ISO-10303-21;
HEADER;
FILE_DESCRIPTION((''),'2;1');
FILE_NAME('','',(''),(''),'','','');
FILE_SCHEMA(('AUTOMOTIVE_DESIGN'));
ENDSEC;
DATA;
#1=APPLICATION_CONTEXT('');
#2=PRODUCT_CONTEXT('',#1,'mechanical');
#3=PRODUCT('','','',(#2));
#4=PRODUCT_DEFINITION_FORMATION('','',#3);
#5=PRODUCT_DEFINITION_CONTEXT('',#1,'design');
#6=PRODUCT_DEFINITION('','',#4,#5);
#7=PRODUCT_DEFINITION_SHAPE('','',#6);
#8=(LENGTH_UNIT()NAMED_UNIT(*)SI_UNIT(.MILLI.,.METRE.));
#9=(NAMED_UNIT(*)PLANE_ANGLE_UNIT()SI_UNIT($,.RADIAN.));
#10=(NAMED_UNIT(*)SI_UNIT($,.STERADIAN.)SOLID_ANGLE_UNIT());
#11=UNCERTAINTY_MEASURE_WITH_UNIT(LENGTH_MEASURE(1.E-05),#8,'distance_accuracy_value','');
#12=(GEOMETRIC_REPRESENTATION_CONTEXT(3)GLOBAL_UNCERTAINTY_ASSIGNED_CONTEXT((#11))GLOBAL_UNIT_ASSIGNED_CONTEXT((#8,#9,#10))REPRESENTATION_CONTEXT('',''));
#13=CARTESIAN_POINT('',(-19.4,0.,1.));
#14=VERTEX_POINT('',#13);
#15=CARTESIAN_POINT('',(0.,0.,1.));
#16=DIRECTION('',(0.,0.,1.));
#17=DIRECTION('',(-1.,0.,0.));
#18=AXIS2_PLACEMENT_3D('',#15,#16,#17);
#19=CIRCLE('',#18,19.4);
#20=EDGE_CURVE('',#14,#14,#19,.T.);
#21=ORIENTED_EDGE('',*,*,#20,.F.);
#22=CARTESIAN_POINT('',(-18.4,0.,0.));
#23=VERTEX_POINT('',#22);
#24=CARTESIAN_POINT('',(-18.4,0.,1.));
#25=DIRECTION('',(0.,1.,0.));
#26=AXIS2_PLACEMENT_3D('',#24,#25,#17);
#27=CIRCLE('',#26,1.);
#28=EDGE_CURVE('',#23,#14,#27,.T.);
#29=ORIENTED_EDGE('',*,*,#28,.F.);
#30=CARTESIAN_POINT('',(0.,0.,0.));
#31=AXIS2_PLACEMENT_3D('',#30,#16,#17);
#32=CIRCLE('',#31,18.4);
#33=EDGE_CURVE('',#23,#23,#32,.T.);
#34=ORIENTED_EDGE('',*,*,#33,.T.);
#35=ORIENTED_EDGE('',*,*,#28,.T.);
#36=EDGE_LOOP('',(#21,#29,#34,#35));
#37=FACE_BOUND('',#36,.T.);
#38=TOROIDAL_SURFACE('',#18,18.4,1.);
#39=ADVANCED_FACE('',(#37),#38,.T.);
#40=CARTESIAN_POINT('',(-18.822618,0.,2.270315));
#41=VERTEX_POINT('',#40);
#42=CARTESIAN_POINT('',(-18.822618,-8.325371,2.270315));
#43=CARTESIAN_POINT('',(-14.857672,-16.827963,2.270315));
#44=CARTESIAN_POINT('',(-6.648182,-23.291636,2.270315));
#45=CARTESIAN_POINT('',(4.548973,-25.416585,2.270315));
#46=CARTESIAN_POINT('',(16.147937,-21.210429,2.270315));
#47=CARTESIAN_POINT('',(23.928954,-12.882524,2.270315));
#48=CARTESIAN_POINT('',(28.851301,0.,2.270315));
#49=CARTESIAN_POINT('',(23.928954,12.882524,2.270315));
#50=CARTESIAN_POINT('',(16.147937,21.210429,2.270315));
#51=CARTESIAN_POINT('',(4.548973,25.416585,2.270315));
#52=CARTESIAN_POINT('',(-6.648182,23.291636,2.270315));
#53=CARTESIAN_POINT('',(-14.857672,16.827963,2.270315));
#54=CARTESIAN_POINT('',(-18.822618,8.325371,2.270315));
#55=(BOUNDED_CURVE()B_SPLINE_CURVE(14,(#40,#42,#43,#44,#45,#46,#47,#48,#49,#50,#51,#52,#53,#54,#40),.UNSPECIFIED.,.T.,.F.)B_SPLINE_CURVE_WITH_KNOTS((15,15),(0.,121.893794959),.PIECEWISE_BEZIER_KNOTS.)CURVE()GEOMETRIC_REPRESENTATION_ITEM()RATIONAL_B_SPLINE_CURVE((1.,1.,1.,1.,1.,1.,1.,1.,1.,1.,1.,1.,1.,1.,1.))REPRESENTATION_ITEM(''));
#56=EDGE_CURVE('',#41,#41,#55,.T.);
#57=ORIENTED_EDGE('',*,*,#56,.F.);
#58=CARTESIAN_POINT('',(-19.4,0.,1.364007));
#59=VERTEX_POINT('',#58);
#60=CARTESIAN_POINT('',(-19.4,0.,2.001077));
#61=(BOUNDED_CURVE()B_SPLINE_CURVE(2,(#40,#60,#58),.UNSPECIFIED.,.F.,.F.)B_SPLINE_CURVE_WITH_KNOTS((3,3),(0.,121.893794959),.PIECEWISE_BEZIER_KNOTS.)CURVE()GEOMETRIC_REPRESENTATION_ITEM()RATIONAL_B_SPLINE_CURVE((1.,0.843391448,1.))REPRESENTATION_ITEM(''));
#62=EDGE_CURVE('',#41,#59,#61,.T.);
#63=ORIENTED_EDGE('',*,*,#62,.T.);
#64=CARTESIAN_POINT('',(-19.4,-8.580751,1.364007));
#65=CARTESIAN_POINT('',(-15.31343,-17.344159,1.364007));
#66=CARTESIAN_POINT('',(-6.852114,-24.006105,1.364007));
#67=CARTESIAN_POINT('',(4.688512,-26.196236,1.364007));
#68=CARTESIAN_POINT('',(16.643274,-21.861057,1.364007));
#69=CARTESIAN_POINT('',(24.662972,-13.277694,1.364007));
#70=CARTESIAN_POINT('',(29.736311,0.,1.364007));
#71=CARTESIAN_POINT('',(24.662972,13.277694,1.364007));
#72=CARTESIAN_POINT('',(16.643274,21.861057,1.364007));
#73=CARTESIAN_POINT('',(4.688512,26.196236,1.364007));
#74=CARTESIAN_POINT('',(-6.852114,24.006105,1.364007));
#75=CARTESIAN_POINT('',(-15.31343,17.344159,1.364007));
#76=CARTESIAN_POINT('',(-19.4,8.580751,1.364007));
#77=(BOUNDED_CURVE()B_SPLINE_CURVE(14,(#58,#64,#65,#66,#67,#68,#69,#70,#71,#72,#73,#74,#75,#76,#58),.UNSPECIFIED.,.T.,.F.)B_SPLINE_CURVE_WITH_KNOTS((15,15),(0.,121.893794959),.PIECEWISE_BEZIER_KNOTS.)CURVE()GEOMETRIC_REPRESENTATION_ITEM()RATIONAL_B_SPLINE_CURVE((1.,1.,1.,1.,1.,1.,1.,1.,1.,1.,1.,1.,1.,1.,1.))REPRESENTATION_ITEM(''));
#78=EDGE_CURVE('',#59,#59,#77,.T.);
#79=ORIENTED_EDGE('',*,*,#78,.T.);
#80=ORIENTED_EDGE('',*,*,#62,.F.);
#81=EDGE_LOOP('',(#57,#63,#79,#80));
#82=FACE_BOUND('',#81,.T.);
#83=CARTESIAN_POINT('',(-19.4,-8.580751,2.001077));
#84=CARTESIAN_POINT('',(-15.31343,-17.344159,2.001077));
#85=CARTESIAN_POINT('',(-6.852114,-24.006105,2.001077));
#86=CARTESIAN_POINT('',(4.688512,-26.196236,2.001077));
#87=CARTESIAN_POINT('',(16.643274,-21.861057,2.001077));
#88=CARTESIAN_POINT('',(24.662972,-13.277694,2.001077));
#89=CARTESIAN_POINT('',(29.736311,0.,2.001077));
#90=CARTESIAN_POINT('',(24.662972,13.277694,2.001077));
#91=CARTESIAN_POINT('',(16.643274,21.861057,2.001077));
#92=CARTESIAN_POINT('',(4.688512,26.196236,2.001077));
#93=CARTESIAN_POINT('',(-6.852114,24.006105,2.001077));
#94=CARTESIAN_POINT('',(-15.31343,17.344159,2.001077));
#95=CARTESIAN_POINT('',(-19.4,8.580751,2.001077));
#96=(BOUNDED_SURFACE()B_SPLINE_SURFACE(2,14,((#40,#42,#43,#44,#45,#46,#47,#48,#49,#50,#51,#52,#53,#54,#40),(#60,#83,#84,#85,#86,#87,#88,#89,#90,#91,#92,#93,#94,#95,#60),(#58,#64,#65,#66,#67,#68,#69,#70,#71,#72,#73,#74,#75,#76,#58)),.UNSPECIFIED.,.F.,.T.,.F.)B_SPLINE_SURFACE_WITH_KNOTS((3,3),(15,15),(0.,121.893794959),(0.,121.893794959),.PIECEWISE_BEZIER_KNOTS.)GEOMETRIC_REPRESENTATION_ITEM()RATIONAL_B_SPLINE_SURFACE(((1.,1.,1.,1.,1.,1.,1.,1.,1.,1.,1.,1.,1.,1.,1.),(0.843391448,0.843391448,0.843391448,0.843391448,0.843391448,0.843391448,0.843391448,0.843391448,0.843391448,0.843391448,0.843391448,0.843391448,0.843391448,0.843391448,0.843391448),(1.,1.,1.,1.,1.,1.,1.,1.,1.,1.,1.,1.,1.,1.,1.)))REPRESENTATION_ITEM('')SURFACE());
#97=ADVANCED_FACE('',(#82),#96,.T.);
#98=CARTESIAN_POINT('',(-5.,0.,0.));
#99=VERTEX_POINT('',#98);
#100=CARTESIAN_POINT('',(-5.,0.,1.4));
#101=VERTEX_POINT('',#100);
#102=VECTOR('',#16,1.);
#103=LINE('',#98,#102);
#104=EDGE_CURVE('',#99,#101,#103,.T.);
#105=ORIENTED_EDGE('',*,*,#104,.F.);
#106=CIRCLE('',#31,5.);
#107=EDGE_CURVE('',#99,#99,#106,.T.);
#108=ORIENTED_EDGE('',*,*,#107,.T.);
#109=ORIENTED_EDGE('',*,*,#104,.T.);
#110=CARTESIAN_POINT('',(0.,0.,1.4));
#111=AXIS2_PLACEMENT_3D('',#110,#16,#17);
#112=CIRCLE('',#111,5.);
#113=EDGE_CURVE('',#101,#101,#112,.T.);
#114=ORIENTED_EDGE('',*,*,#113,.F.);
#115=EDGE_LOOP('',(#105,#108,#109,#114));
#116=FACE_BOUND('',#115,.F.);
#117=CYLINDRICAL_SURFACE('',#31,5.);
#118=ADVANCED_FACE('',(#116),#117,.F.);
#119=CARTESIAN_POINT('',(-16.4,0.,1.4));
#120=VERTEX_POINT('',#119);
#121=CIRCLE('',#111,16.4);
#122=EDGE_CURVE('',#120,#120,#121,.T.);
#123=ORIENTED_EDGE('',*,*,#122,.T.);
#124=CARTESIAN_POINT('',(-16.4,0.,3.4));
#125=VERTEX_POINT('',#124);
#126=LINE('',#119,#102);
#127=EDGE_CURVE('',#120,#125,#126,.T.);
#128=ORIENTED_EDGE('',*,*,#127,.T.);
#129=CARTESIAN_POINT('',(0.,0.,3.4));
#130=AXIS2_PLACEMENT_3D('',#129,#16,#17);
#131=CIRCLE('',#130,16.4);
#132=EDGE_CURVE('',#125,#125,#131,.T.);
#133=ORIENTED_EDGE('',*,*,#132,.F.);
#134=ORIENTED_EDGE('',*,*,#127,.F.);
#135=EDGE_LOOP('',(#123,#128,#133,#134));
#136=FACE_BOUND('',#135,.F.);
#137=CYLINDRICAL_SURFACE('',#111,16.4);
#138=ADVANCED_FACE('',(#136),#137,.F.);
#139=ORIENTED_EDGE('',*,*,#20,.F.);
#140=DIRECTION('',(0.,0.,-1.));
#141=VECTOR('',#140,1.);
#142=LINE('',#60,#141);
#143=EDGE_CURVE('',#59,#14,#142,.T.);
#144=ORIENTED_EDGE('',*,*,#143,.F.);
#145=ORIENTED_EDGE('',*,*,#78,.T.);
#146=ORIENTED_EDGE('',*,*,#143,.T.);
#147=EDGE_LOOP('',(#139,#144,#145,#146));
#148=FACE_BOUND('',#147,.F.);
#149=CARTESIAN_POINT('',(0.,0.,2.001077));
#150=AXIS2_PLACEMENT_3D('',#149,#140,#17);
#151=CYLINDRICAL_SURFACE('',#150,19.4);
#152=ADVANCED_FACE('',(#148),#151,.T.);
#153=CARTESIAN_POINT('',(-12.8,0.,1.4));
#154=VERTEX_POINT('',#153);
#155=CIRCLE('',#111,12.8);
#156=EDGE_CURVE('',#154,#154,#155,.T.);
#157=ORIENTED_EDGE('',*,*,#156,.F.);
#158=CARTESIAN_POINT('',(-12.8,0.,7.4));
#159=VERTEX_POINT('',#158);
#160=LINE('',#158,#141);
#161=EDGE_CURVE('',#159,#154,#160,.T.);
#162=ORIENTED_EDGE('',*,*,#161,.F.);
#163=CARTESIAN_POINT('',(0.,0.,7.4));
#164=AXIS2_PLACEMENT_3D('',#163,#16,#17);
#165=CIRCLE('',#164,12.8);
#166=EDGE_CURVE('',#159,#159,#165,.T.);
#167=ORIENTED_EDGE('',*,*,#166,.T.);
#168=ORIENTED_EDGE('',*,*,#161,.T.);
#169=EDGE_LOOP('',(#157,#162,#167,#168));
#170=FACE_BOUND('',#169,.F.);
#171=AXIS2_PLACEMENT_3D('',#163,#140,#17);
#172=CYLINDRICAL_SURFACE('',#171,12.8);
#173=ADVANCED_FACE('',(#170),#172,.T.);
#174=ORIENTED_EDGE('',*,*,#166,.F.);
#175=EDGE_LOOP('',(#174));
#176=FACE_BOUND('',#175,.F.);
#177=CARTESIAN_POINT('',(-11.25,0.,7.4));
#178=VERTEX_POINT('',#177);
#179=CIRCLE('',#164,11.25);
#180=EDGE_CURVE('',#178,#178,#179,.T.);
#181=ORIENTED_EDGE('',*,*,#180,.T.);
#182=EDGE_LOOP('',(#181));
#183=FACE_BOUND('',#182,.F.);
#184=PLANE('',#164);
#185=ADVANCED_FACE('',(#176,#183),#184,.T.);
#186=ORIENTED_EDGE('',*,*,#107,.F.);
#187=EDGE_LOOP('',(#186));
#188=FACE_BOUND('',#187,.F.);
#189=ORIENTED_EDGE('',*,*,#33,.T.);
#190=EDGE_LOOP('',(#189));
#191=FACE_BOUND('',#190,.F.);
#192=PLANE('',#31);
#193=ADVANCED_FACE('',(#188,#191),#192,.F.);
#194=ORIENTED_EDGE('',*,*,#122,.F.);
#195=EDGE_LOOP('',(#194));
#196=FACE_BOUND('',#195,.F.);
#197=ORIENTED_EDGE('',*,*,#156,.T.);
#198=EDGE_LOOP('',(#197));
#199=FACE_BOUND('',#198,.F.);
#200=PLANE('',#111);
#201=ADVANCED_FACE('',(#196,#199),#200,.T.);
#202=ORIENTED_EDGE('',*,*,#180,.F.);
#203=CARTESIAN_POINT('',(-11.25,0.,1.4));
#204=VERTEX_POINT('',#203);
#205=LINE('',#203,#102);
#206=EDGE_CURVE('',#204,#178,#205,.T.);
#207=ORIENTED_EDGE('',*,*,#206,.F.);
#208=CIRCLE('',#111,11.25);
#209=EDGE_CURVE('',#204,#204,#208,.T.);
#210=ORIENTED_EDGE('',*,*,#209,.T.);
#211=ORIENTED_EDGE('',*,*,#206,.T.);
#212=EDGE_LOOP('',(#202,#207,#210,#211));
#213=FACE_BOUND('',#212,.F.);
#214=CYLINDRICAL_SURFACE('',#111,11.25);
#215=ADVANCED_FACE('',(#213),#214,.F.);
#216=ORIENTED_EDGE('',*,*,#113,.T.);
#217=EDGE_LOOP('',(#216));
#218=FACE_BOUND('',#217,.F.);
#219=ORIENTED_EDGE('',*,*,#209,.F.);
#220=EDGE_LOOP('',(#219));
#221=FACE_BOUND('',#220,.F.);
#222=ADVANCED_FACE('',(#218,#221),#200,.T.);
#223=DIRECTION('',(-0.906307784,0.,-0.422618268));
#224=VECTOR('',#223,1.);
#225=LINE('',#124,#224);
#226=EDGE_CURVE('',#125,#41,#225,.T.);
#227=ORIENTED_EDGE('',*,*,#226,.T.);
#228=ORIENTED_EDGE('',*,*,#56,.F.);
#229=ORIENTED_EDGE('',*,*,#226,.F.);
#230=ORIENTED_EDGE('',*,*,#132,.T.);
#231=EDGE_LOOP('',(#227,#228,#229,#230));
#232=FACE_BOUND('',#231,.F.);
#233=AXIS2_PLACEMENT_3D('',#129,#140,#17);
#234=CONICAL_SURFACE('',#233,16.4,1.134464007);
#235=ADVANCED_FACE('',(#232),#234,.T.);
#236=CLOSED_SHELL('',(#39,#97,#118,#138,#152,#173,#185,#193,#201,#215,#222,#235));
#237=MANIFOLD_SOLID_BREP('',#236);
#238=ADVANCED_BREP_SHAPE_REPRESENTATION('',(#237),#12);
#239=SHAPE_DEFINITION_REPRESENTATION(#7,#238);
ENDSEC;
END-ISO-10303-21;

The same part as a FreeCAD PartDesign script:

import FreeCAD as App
import Part
import Sketcher
from FreeCAD import Vector
Q = App.Units.Quantity


def edges_at(feature, points):
    """Names of the edges that pass closest to the given points."""
    edges = feature.Shape.Edges
    near = lambda p: min(range(len(edges)), key=lambda i: edges[i].distToShape(Part.Vertex(*p))[0])
    return sorted({f"Edge{near(p) + 1}" for p in points})


def add_polygon(sketch, points):
    """Adds a closed chain of lines whose ends are joined by coincident constraints."""
    first, n = sketch.GeometryCount, len(points)
    for a, b in zip(points, points[1:] + points[:1]):
        sketch.addGeometry(Part.LineSegment(App.Vector(*a, 0), App.Vector(*b, 0)), False)
    for i in range(n):
        sketch.addConstraint(Sketcher.Constraint("Coincident", first + i, 2, first + (i + 1) % n, 1))

doc = App.newDocument("Part")
params = doc.addObject("Spreadsheet::Sheet", "Params")
for row, (alias, value) in enumerate([
    ("sketch1_height", "6 mm"),
    ("sketch1_height2", "2 mm"),
    ("sketch1_width", "14.4 mm"),
    ("sketch1_width2", "3.6 mm"),
    ("sketch1_height3", "1.4 mm"),
    ("revolution_angle", "360 deg"),
    ("fillet_radius", "1 mm"),
], start=1):
    params.set(f"A{row}", alias)
    params.set(f"B{row}", "=" + value)
    params.setAlias(f"B{row}", alias)

body = doc.addObject("PartDesign::Body", "Body")

# Sketch on XZ plane
sketch1 = body.newObject("Sketcher::SketchObject", "Sketch")
sketch1.AttachmentSupport = (doc.getObject("XZ_Plane"), [""])
sketch1.MapMode = "FlatFace"
add_polygon(sketch1, [(-19.4, 0), (-5, 0), (-5, 1.4), (-11.25, 1.4), (-11.25, 7.4), (-12.8, 7.4), (-12.8, 1.4), (-16.4, 1.4), (-16.4, 3.4), (-19.4, 2.001077)])  # lines 0-9
sketch1.addConstraint([
    Sketcher.Constraint("Horizontal", 0),
    Sketcher.Constraint("Vertical", 1),
    Sketcher.Constraint("Horizontal", 2),
    Sketcher.Constraint("Vertical", 3),
    Sketcher.Constraint("Horizontal", 4),
    Sketcher.Constraint("Vertical", 5),
    Sketcher.Constraint("Horizontal", 6),
    Sketcher.Constraint("Vertical", 7),
    Sketcher.Constraint("Vertical", 9),
    Sketcher.Constraint("PointOnObject", 0, 2, -1),
    Sketcher.Constraint("Horizontal", 2, 2, 5, 2),
    Sketcher.Constraint("DistanceY", 3, 1, 3, 2, 6.0),
    Sketcher.Constraint("DistanceY", 7, 1, 7, 2, 2.0),
    Sketcher.Constraint("Angle", 8, Q("-155 deg")),
    Sketcher.Constraint("DistanceX", 0, 1, 0, 2, 14.4),
    Sketcher.Constraint("DistanceX", 6, 2, 6, 1, 3.6),
    Sketcher.Constraint("DistanceY", 1, 1, 1, 2, 1.4),
    Sketcher.Constraint("DistanceX", 0, 2, -1, 1, 5.0),
    Sketcher.Constraint("DistanceX", 8, 2, 6, 2, 3.0),
    Sketcher.Constraint("DistanceX", 2, 2, 2, 1, 6.25),
])
sketch1.setExpression("Constraints[21]", "Params.sketch1_height")
sketch1.setExpression("Constraints[22]", "Params.sketch1_height2")
sketch1.setExpression("Constraints[24]", "Params.sketch1_width")
sketch1.setExpression("Constraints[25]", "Params.sketch1_width2")
sketch1.setExpression("Constraints[26]", "Params.sketch1_height3")
revolution = body.newObject("PartDesign::Revolution", "Revolution")
revolution.Profile = sketch1
revolution.ReferenceAxis = (sketch1, ["V_Axis"])
revolution.setExpression("Angle", "Params.revolution_angle")
doc.recompute()

fillet = body.newObject("PartDesign::Fillet", "Fillet")
fillet.Base = (revolution, edges_at(revolution, [(19.4, 0, 2.001), (19.4, 0, 0)]))
fillet.setExpression("Radius", "Params.fillet_radius")

doc.recompute()
